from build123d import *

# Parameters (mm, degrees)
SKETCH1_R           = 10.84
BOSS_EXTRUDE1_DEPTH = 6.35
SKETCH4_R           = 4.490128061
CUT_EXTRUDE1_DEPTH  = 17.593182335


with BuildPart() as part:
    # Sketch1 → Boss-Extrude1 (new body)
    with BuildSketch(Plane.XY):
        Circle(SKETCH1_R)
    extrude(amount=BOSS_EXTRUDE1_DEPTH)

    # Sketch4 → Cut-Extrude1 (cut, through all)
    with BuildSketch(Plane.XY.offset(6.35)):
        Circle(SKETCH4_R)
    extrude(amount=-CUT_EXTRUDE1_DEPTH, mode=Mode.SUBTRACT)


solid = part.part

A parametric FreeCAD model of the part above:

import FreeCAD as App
import Part
import Sketcher
from FreeCAD import Vector
Q = App.Units.Quantity

doc = App.newDocument("Part")
body = doc.addObject("PartDesign::Body", "Body")

# Sketch on XY plane
sketch1 = body.newObject("Sketcher::SketchObject", "Sketch")
sketch1.AttachmentSupport = (doc.getObject("XY_Plane"), [""])
sketch1.MapMode = "FlatFace"
sketch1.addGeometry(Part.Circle(Vector(0, 0, 0), Vector(0, 0, 1), 11), False)
sketch1.addConstraint(Sketcher.Constraint("Coincident", 0, 3, -1, 1))
sketch1.addConstraint(Sketcher.Constraint("Diameter", 0, 21.68))
pad1 = body.newObject("PartDesign::Pad", "Pad")
pad1.Profile = sketch1
pad1.Length = Q("0.25 in")

# Sketch on XY plane
sketch2 = body.newObject("Sketcher::SketchObject", "Sketch001")
sketch2.AttachmentSupport = (doc.getObject("XY_Plane"), [""])
sketch2.MapMode = "FlatFace"
sketch2.AttachmentOffset = App.Placement(Vector(0, 0, 0.25 * 25.4), App.Rotation())
sketch2.addGeometry(Part.Circle(Vector(0, 0, 0), Vector(0, 0, 1), 4.5), False)
sketch2.addConstraint(Sketcher.Constraint("Coincident", 0, 3, -1, 1))
sketch2.addConstraint(Sketcher.Constraint("Diameter", 0, 8.980256))
pocket1 = body.newObject("PartDesign::Pocket", "Pocket")
pocket1.Profile = sketch2
pocket1.Type = "ThroughAll"

doc.recompute()
